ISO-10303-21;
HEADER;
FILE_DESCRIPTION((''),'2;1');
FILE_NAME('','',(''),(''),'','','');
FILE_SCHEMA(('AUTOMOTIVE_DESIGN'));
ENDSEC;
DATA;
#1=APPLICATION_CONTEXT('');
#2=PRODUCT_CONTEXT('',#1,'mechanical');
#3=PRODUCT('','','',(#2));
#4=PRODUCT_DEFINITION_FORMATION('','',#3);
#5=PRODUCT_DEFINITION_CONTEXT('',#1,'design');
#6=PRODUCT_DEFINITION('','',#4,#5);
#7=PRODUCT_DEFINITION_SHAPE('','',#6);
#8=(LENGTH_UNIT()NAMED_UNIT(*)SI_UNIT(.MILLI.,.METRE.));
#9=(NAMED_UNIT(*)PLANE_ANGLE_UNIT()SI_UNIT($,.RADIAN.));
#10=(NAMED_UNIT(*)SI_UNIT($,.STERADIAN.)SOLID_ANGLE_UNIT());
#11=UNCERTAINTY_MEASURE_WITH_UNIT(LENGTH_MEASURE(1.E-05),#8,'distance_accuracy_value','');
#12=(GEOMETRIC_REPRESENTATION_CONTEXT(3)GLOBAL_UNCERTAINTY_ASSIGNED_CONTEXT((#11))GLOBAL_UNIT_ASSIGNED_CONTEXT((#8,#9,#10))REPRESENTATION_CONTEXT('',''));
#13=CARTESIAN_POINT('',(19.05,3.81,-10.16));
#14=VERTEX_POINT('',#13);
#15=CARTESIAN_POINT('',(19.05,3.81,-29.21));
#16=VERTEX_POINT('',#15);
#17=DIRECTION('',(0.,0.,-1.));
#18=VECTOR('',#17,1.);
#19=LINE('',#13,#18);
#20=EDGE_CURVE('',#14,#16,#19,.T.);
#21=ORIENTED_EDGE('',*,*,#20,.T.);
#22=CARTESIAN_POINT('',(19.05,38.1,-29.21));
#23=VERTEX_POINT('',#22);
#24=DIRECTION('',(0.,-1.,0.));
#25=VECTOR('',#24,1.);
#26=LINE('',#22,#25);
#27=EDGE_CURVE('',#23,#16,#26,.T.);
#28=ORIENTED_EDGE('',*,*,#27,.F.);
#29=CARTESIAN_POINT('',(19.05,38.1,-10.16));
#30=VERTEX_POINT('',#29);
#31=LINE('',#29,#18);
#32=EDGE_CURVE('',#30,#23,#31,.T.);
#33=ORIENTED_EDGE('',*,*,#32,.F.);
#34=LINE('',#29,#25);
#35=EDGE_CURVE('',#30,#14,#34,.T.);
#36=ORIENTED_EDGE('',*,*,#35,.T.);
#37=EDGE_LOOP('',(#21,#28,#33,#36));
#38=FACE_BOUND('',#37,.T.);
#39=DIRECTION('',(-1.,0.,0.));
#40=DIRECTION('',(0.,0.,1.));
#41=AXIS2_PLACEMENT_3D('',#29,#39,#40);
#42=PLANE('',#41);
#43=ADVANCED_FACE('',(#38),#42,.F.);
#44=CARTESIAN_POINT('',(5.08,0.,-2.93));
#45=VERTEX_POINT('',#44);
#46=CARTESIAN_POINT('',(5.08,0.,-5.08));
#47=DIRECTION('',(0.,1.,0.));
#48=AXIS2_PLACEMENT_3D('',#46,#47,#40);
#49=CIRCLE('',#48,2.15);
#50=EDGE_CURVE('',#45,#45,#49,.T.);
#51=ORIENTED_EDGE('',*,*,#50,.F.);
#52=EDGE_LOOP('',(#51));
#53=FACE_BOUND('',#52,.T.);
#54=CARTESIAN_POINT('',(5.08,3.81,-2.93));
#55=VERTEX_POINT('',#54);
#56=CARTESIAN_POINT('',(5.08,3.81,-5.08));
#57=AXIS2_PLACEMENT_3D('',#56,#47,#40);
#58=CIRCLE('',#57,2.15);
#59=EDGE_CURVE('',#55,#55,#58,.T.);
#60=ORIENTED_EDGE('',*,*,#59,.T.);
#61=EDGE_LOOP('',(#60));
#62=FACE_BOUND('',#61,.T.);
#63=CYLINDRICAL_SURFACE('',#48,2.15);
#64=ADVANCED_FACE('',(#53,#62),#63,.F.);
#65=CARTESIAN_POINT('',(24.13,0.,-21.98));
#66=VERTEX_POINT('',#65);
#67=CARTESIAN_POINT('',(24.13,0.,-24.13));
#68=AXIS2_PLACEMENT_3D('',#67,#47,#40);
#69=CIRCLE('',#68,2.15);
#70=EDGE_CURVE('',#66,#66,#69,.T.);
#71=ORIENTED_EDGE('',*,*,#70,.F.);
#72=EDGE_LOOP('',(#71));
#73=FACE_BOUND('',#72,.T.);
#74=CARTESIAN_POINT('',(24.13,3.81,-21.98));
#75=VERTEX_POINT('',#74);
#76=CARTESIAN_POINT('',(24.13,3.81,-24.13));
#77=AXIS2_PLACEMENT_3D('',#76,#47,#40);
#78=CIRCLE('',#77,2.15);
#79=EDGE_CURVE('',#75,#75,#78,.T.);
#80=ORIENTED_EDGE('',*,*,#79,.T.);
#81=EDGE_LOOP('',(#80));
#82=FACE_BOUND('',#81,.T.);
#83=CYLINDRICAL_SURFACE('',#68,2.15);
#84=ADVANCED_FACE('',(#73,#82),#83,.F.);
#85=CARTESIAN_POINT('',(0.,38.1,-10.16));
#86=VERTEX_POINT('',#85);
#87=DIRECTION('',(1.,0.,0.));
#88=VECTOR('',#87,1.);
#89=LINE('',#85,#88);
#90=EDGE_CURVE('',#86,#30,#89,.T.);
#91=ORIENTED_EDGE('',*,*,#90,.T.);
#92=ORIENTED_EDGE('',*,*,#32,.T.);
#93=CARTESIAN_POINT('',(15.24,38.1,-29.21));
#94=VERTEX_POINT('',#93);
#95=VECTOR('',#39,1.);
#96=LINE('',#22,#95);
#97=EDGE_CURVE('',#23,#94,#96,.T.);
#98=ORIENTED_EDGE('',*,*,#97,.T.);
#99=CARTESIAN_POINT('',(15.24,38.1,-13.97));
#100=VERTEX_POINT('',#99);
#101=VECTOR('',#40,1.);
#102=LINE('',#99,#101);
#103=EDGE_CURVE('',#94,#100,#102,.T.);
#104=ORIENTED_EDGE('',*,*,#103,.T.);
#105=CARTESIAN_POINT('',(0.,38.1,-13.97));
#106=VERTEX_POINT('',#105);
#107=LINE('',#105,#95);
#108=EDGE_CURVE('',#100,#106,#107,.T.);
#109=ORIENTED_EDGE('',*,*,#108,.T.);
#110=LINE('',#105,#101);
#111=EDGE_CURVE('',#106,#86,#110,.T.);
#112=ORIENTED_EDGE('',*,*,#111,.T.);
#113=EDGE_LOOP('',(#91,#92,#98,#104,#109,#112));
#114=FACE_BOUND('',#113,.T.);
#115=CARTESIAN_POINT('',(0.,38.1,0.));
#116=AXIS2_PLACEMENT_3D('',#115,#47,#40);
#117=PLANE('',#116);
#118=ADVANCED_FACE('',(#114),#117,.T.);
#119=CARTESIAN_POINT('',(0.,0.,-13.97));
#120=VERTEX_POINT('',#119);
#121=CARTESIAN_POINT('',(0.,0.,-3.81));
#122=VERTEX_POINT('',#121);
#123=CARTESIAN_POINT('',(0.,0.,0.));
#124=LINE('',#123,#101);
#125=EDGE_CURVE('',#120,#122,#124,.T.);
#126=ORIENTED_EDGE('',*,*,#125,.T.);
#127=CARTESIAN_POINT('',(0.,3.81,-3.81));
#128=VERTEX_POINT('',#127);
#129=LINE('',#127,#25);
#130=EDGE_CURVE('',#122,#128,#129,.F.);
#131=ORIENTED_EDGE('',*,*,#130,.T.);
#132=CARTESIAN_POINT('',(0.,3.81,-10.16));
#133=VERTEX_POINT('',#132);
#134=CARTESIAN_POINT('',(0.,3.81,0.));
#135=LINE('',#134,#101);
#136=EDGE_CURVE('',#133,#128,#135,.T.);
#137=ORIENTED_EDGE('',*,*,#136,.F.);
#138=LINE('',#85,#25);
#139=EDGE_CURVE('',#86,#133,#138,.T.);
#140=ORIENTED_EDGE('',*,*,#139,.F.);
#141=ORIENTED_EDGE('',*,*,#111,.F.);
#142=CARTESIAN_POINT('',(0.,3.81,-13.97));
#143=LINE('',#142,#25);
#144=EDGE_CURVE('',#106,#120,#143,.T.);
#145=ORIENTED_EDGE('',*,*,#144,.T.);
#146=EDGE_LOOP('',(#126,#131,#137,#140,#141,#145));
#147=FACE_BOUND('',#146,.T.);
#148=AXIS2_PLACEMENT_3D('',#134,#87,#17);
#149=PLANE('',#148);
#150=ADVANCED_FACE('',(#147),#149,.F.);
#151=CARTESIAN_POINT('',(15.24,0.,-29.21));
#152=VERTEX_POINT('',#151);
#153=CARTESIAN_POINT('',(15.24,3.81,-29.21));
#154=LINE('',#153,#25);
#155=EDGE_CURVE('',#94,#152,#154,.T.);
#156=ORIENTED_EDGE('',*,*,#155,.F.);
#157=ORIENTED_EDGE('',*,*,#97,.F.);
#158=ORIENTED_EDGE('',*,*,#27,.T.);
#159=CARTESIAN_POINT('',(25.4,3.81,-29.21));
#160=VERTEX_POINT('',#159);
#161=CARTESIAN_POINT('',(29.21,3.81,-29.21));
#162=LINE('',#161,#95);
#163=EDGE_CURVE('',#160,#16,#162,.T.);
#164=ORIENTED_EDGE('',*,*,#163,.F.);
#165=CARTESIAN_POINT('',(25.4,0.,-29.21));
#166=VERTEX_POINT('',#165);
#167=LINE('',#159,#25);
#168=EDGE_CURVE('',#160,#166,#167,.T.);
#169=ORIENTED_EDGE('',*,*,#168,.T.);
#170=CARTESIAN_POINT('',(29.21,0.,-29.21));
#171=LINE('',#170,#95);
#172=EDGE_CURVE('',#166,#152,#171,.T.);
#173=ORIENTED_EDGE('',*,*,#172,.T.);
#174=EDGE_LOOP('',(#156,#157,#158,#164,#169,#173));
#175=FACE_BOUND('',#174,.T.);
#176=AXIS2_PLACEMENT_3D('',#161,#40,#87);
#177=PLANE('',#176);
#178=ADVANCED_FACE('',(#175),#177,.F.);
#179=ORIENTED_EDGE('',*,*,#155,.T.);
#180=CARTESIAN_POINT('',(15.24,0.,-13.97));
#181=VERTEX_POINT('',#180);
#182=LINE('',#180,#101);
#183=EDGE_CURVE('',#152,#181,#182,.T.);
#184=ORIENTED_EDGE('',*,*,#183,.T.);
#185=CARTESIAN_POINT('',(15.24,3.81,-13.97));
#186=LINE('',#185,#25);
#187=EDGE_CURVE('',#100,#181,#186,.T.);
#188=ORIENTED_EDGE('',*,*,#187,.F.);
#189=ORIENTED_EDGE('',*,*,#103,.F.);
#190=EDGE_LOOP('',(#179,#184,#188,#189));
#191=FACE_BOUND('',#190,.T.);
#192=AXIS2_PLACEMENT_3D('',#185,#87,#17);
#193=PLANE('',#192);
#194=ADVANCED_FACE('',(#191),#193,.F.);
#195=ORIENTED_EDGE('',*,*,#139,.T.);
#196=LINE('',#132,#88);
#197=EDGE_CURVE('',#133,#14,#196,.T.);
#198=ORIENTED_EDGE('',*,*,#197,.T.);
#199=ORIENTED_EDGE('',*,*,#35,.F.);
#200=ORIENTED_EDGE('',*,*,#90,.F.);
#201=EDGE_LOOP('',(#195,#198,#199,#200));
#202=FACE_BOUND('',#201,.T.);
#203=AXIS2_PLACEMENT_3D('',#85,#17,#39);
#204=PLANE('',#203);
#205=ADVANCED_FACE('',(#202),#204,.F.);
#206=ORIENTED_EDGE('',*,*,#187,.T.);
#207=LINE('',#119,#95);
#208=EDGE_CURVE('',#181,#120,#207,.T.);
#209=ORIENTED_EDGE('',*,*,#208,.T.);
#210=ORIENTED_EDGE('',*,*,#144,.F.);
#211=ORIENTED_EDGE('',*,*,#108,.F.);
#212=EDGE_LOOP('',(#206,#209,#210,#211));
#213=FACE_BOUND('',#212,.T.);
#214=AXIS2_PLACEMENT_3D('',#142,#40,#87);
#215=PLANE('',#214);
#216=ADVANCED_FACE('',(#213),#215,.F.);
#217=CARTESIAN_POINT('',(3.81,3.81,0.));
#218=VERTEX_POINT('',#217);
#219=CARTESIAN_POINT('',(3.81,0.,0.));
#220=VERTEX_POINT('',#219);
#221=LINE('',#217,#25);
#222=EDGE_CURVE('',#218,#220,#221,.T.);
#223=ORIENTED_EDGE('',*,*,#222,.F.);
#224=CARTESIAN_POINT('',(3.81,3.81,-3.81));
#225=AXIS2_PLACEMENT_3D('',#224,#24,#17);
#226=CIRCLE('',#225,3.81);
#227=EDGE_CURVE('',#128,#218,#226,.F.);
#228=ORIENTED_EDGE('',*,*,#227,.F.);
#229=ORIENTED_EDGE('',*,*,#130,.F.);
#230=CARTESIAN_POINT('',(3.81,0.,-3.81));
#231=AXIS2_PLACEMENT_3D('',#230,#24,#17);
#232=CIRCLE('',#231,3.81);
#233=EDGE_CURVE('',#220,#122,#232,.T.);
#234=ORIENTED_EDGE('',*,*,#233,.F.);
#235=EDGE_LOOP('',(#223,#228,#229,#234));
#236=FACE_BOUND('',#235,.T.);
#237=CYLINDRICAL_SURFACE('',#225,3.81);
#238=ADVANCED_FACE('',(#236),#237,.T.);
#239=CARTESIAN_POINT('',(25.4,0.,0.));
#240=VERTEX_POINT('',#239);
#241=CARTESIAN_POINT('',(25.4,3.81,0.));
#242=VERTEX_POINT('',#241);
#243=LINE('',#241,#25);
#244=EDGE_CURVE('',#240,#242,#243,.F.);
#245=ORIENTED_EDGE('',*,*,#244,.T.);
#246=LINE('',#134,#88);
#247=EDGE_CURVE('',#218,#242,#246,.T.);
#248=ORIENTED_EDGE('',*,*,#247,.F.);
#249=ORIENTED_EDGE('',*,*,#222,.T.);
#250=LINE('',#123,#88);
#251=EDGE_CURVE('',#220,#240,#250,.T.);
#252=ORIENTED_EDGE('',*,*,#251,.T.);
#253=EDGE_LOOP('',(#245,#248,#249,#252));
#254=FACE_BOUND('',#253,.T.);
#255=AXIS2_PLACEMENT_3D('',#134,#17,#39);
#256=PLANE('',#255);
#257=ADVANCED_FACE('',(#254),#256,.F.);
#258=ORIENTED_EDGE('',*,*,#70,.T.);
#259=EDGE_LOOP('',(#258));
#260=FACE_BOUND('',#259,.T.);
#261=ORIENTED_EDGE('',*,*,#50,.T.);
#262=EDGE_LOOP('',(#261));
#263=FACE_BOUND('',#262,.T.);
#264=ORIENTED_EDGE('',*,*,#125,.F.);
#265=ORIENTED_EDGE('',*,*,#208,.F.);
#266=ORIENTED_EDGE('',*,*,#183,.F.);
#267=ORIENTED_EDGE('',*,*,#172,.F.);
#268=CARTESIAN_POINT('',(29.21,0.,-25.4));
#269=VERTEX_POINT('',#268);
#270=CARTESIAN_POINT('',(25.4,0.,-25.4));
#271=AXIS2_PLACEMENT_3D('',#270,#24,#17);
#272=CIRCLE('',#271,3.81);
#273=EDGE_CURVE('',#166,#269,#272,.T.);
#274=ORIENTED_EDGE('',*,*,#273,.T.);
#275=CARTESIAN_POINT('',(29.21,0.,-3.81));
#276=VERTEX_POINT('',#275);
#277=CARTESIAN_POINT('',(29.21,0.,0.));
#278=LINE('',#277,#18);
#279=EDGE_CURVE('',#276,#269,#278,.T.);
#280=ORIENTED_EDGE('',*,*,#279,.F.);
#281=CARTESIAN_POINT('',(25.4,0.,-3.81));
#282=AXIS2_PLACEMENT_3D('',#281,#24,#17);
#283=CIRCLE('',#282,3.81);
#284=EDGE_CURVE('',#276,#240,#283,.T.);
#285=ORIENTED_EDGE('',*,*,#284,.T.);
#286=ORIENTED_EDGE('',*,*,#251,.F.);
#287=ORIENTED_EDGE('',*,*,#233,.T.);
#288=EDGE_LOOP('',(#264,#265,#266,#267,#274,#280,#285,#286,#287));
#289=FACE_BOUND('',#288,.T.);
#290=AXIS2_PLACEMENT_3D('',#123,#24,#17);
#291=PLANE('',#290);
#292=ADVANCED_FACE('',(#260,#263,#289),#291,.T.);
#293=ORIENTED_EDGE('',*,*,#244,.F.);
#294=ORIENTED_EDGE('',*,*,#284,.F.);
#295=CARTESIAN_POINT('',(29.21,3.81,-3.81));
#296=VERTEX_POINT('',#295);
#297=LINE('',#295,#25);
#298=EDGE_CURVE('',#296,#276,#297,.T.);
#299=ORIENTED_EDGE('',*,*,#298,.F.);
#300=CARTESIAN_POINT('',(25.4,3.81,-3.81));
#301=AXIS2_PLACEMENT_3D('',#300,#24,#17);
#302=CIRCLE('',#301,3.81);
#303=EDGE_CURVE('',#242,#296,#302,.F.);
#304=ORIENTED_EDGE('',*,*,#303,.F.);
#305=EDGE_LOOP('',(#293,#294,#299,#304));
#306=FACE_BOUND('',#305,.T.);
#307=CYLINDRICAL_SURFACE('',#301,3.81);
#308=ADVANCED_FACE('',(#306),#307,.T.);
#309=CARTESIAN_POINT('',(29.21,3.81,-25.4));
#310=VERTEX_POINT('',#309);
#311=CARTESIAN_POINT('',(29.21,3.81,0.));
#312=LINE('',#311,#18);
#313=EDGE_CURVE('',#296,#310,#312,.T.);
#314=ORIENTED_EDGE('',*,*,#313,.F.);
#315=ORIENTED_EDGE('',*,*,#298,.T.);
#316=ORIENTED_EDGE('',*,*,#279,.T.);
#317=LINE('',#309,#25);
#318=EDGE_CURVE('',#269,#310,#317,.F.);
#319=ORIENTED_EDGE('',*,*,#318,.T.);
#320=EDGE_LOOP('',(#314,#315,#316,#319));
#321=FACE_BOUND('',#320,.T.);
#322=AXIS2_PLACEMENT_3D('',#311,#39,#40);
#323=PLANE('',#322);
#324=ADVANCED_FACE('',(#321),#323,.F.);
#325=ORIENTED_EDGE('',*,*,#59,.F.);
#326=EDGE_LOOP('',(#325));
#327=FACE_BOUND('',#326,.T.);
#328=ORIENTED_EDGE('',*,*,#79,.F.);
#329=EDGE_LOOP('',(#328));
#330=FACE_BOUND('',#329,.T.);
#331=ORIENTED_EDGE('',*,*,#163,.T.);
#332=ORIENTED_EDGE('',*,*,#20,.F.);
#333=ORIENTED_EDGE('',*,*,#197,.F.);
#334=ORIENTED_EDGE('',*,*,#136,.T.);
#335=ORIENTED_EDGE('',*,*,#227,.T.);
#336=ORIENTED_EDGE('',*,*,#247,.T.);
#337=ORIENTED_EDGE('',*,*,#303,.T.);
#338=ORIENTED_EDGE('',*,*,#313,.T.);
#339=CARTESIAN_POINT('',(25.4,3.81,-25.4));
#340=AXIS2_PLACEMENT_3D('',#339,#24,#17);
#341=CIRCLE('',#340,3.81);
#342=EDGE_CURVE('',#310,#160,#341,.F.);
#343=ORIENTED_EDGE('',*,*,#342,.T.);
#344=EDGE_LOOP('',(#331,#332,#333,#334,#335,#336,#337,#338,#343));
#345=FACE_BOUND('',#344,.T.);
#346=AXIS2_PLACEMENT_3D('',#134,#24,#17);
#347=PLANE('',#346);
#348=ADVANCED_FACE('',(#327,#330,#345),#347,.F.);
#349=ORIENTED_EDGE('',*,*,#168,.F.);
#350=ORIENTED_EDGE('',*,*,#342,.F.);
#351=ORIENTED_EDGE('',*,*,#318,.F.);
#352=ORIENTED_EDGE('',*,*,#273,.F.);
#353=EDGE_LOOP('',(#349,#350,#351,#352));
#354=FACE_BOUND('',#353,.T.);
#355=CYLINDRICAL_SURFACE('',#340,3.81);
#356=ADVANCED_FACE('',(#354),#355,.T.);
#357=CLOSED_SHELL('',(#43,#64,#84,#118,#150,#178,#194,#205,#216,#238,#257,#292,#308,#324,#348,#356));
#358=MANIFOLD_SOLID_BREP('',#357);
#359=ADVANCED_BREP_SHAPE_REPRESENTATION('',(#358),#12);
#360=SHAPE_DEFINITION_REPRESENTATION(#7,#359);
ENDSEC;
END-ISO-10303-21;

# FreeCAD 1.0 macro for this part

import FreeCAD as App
import Part
import Sketcher
from FreeCAD import Vector
Q = App.Units.Quantity


def edges_at(feature, points):
    """Names of the edges that pass closest to the given points."""
    edges = feature.Shape.Edges
    near = lambda p: min(range(len(edges)), key=lambda i: edges[i].distToShape(Part.Vertex(*p))[0])
    return sorted({f"Edge{near(p) + 1}" for p in points})


def add_polygon(sketch, points):
    """Adds a closed chain of lines whose ends are joined by coincident constraints."""
    first, n = sketch.GeometryCount, len(points)
    for a, b in zip(points, points[1:] + points[:1]):
        sketch.addGeometry(Part.LineSegment(App.Vector(*a, 0), App.Vector(*b, 0)), False)
    for i in range(n):
        sketch.addConstraint(Sketcher.Constraint("Coincident", first + i, 2, first + (i + 1) % n, 1))

doc = App.newDocument("Part")
body = doc.addObject("PartDesign::Body", "Body")

# Sketch on XZ plane
sketch1 = body.newObject("Sketcher::SketchObject", "Sketch")
sketch1.AttachmentSupport = (doc.getObject("XZ_Plane"), [""])
sketch1.MapMode = "FlatFace"
add_polygon(sketch1, [(29.21, 0), (29.21, -29.21), (15.24, -29.21), (15.24, -13.97), (0, -13.97), (0, 0)])  # lines 0-5
sketch1.addConstraint(Sketcher.Constraint("Vertical", 0))
sketch1.addConstraint(Sketcher.Constraint("Horizontal", 1))
sketch1.addConstraint(Sketcher.Constraint("Vertical", 2))
sketch1.addConstraint(Sketcher.Constraint("Horizontal", 3))
sketch1.addConstraint(Sketcher.Constraint("Vertical", 4))
sketch1.addConstraint(Sketcher.Constraint("Horizontal", 5))
sketch1.addConstraint(Sketcher.Constraint("Coincident", 4, 2, -1, 1))
sketch1.addConstraint(Sketcher.Constraint("Equal", 5, 0))
sketch1.addConstraint(Sketcher.Constraint("Equal", 3, 2))
sketch1.addConstraint(Sketcher.Constraint("DistanceX", 3, 2, 3, 1, Q("0.6 in")))
sketch1.addConstraint(Sketcher.Constraint("DistanceX", 1, 2, 1, 1, Q("0.55 in")))
pad1 = body.newObject("PartDesign::Pad", "Pad")
pad1.Profile = sketch1
pad1.Length = Q("0.15 in")
pad1.Reversed = True

# Sketch on XZ plane
sketch2 = body.newObject("Sketcher::SketchObject", "Sketch001")
sketch2.AttachmentSupport = (doc.getObject("XZ_Plane"), [""])
sketch2.MapMode = "FlatFace"
sketch2.AttachmentOffset = App.Placement(Vector(0, 0, -0.15 * 25.4), App.Rotation())
add_polygon(sketch2, [(15.24, -13.97), (0, -13.97), (0, -10.16), (19.05, -10.16), (19.05, -29.21), (15.24, -29.21)])  # lines 0-5
sketch2.addConstraint(Sketcher.Constraint("Horizontal", 0))
sketch2.addConstraint(Sketcher.Constraint("Vertical", 1))
sketch2.addConstraint(Sketcher.Constraint("Horizontal", 2))
sketch2.addConstraint(Sketcher.Constraint("Vertical", 3))
sketch2.addConstraint(Sketcher.Constraint("Horizontal", 4))
sketch2.addConstraint(Sketcher.Constraint("Vertical", 5))
sketch2.addConstraint(Sketcher.Constraint("PointOnObject", 0, 2, -2))
sketch2.addConstraint(Sketcher.Constraint("Equal", 4, 1))
sketch2.addConstraint(Sketcher.Constraint("Equal", 2, 3))
sketch2.addConstraint(Sketcher.Constraint("DistanceX", 0, 2, 0, 1, Q("0.6 in")))
sketch2.addConstraint(Sketcher.Constraint("DistanceX", 2, 1, 2, 2, Q("0.75 in")))
sketch2.addConstraint(Sketcher.Constraint("DistanceY", 1, 2, -1, 1, Q("0.4 in")))
pad2 = body.newObject("PartDesign::Pad", "Pad001")
pad2.Profile = sketch2
pad2.Length = Q("1.35 in")
pad2.Reversed = True

# Sketch on XZ plane
sketch3 = body.newObject("Sketcher::SketchObject", "Sketch002")
sketch3.AttachmentSupport = (doc.getObject("XZ_Plane"), [""])
sketch3.MapMode = "FlatFace"
sketch3.AttachmentOffset = App.Placement(Vector(0, 0, -0.15 * 25.4), App.Rotation())
sketch3.addGeometry(Part.Circle(Vector(5.08, -5.08, 0), Vector(0, 0, 1), 2.15), False)
sketch3.addGeometry(Part.Circle(Vector(24.13, -24.13, 0), Vector(0, 0, 1), 2.15), False)
sketch3.addConstraint(Sketcher.Constraint("Equal", 0, 1))
sketch3.addConstraint(Sketcher.Constraint("DistanceX", -1, 1, 0, 3, Q("0.2 in")))
sketch3.addConstraint(Sketcher.Constraint("DistanceY", 0, 3, -1, 1, Q("0.2 in")))
sketch3.addConstraint(Sketcher.Constraint("Diameter", 0, Q("4.3 mm")))
sketch3.addConstraint(Sketcher.Constraint("DistanceX", -1, 1, 1, 3, Q("0.95 in")))
sketch3.addConstraint(Sketcher.Constraint("DistanceY", 1, 3, -1, 1, Q("0.95 in")))
pocket1 = body.newObject("PartDesign::Pocket", "Pocket")
pocket1.Profile = sketch3
pocket1.Type = "ThroughAll"
pocket1.Reversed = True
doc.recompute()

fillet = body.newObject("PartDesign::Fillet", "Fillet")
fillet.Base = (pocket1, edges_at(pocket1, [(29.21, 1.905, -29.21), (29.21, 1.905, 0), (0, 1.905, 0)]))
fillet.Radius = Q("0.15 in")

doc.recompute()
